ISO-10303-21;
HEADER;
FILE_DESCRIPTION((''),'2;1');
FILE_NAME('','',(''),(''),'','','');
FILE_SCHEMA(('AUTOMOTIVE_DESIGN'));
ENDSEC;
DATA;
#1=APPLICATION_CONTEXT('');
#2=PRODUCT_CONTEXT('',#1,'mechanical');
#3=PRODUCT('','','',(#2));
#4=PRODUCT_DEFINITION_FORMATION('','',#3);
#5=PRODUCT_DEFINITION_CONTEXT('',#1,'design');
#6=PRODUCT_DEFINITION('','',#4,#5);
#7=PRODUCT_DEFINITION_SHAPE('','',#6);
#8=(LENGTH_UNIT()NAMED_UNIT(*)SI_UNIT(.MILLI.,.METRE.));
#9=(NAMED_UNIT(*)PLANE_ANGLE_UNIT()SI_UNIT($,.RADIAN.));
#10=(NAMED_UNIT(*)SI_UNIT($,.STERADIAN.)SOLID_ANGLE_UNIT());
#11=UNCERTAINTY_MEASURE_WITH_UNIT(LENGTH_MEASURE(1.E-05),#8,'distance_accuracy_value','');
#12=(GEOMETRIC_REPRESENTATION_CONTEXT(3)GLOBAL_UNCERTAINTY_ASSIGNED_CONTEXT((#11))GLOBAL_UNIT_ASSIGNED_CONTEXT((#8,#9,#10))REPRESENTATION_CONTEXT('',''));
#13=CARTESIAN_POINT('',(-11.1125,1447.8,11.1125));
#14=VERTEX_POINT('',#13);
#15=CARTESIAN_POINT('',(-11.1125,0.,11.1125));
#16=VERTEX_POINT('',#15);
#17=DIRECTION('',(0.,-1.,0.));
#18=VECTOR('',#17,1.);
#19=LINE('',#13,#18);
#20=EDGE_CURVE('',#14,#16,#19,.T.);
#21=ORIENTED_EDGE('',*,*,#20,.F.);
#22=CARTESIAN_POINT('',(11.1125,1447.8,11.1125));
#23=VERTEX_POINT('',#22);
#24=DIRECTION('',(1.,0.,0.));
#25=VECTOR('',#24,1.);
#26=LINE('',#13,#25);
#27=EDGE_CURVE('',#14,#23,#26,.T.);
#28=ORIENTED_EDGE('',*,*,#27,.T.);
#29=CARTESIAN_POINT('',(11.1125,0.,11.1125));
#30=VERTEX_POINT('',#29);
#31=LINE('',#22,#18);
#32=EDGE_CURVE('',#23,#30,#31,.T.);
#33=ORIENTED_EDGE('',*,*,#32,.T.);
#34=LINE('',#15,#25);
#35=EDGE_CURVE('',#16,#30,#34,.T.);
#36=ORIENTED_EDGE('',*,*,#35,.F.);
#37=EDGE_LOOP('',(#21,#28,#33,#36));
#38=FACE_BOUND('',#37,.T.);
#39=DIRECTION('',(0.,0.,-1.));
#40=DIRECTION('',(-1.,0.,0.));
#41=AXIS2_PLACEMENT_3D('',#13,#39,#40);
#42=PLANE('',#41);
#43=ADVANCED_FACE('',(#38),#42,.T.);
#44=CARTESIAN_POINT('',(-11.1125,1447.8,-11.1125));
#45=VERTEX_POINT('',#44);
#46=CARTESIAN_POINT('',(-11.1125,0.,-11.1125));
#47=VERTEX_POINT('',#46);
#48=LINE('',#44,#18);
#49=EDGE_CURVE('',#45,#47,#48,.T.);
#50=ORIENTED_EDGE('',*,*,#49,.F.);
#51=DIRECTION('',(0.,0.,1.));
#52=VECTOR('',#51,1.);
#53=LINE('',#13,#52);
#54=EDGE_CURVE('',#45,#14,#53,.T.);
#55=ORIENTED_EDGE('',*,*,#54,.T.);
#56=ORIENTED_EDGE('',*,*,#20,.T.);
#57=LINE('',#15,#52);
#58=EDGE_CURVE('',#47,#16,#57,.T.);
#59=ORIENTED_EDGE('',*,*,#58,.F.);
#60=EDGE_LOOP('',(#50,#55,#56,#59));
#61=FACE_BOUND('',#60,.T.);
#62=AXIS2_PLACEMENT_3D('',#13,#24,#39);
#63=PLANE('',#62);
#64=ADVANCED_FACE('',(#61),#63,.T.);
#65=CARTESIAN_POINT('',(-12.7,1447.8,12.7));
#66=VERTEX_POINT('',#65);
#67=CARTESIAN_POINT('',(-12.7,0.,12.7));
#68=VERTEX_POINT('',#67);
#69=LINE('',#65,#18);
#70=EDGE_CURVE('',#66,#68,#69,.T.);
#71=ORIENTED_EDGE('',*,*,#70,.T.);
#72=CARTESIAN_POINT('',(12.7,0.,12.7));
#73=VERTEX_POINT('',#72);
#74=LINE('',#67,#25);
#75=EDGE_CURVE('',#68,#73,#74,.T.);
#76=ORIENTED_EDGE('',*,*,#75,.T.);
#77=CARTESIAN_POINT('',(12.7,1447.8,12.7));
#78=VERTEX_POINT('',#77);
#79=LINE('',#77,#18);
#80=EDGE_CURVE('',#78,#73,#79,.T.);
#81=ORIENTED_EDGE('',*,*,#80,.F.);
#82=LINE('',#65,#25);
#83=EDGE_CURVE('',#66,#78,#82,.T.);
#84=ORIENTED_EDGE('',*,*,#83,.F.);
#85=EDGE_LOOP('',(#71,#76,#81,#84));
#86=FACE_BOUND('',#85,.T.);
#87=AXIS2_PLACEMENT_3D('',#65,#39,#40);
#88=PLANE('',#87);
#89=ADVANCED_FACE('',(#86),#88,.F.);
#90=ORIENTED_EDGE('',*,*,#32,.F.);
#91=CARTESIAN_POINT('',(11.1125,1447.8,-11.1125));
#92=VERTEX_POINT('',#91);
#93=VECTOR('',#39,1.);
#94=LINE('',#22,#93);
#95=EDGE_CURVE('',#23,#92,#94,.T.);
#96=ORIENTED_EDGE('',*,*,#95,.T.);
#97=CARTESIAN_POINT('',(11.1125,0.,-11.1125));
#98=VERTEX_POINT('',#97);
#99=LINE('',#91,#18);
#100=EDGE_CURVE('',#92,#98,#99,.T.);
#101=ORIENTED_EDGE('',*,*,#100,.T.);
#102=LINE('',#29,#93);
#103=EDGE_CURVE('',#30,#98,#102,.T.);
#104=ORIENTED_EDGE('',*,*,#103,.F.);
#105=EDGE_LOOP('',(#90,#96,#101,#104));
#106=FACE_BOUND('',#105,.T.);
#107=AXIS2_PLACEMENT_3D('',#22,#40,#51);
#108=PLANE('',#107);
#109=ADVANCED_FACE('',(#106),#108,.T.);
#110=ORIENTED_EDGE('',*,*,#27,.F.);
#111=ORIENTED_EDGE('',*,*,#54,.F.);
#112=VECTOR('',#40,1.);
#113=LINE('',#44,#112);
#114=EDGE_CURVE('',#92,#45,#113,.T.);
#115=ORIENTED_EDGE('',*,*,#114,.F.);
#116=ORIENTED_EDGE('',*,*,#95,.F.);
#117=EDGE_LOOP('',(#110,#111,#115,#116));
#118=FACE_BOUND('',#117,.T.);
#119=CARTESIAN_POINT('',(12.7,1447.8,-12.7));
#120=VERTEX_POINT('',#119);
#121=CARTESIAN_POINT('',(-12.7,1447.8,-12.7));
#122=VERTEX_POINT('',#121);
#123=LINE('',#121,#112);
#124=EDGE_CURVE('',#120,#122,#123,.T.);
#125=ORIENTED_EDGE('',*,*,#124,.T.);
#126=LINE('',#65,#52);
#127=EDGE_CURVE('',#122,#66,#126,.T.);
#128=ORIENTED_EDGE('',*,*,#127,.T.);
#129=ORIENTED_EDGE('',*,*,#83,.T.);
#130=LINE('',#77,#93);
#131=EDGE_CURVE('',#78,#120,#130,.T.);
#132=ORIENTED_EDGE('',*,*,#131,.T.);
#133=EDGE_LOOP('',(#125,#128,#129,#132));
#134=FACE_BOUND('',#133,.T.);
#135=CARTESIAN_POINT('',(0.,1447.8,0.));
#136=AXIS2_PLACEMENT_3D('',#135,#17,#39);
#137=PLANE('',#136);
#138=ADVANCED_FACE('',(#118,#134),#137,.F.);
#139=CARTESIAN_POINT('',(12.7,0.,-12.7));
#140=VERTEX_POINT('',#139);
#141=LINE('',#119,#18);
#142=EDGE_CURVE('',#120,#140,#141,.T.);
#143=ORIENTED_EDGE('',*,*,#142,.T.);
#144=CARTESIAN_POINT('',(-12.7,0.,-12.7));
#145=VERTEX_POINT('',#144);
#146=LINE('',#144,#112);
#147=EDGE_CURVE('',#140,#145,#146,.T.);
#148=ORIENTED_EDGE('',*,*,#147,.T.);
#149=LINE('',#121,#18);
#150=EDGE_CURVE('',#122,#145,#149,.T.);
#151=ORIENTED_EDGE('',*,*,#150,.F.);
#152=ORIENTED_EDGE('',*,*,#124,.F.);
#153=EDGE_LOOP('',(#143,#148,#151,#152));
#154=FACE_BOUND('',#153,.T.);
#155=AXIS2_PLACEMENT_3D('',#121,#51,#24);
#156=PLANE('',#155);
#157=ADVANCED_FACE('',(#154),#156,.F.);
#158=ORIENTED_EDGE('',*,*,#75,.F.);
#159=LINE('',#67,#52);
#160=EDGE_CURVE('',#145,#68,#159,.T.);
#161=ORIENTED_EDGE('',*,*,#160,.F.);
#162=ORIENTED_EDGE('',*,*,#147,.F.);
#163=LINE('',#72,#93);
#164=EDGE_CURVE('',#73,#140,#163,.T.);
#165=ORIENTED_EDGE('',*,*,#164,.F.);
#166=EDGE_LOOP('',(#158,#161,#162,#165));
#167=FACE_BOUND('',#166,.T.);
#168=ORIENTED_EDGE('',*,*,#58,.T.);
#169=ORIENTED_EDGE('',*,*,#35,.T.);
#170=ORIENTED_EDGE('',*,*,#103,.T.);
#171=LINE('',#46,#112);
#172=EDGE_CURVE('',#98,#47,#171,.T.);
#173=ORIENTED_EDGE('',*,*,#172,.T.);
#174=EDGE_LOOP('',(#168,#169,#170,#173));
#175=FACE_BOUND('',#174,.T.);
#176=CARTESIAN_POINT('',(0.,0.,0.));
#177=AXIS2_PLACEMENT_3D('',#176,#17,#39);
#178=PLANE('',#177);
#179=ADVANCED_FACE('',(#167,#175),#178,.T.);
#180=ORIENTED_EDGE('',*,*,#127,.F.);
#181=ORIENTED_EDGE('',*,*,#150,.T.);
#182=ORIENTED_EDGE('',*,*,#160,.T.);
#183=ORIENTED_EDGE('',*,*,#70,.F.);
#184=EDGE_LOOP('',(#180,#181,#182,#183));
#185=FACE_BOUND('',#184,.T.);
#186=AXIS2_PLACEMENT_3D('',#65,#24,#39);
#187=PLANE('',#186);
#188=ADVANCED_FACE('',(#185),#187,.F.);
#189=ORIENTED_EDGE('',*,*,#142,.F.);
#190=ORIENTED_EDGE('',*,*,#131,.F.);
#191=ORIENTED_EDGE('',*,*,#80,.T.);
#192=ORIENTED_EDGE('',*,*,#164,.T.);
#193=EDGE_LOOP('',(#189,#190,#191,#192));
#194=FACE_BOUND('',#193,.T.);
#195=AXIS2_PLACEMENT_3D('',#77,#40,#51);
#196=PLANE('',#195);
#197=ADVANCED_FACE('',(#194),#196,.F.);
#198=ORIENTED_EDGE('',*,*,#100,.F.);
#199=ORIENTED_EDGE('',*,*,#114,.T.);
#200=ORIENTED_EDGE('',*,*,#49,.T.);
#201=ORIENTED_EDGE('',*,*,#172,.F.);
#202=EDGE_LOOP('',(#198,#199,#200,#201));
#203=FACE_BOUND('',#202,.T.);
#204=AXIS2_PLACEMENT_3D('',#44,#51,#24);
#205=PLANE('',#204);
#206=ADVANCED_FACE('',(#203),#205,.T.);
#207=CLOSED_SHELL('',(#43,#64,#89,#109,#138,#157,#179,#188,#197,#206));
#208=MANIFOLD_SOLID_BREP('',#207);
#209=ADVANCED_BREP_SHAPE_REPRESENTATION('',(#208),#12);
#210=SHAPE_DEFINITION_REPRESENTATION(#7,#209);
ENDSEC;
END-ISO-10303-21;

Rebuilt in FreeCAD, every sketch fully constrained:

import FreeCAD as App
import Part
import Sketcher

V = App.Vector
Q = App.Units.Quantity


def add_polygon(sketch, points):
    """Adds a closed chain of lines whose ends are joined by coincident constraints."""
    first, n = sketch.GeometryCount, len(points)
    for a, b in zip(points, points[1:] + points[:1]):
        sketch.addGeometry(Part.LineSegment(App.Vector(*a, 0), App.Vector(*b, 0)), False)
    for i in range(n):
        sketch.addConstraint(Sketcher.Constraint("Coincident", first + i, 2, first + (i + 1) % n, 1))

doc = App.newDocument("Part")
params = doc.addObject("Spreadsheet::Sheet", "Params")
for row, (alias, value) in enumerate([
    ("sketch1_width", "1 in"),
    ("sketch1_width2", "0.875 in"),
    ("pad1_length", "57 in"),
], start=1):
    params.set(f"A{row}", alias)
    params.set(f"B{row}", "=" + value)
    params.setAlias(f"B{row}", alias)

body = doc.addObject("PartDesign::Body", "Body")

sketch1 = body.newObject("Sketcher::SketchObject", "Sketch")
sketch1.AttachmentSupport = (doc.getObject("XZ_Plane"), [""])
sketch1.MapMode = "FlatFace"
add_polygon(sketch1, [(-13, -13), (-13, 13), (13, 13), (13, -13)])
add_polygon(sketch1, [(11, 11), (-11, 11), (-11, -11), (11, -11)])
sketch1.addConstraint([
    Sketcher.Constraint("Vertical", 0),
    Sketcher.Constraint("Horizontal", 1),
    Sketcher.Constraint("Vertical", 2),
    Sketcher.Constraint("Horizontal", 3),
    Sketcher.Constraint("Horizontal", 4),
    Sketcher.Constraint("Vertical", 5),
    Sketcher.Constraint("Horizontal", 6),
    Sketcher.Constraint("Vertical", 7),
    Sketcher.Constraint("Symmetric", 0, 2, 2, 2, -1, 1),
    Sketcher.Constraint("Symmetric", 4, 2, 6, 2, -1, 1),
    Sketcher.Constraint("Equal", 3, 0),
    Sketcher.Constraint("Equal", 6, 5),
    Sketcher.Constraint("DistanceX", 1, 1, 1, 2, Q("1 in")),
    Sketcher.Constraint("DistanceX", 4, 2, 4, 1, Q("0.875 in")),
])
sketch1.setExpression("Constraints[20]", "Params.sketch1_width")
sketch1.setExpression("Constraints[21]", "Params.sketch1_width2")
pad1 = body.newObject("PartDesign::Pad", "Pad")
pad1.Profile = sketch1
pad1.setExpression("Length", "Params.pad1_length")
pad1.Reversed = True

doc.recompute()
